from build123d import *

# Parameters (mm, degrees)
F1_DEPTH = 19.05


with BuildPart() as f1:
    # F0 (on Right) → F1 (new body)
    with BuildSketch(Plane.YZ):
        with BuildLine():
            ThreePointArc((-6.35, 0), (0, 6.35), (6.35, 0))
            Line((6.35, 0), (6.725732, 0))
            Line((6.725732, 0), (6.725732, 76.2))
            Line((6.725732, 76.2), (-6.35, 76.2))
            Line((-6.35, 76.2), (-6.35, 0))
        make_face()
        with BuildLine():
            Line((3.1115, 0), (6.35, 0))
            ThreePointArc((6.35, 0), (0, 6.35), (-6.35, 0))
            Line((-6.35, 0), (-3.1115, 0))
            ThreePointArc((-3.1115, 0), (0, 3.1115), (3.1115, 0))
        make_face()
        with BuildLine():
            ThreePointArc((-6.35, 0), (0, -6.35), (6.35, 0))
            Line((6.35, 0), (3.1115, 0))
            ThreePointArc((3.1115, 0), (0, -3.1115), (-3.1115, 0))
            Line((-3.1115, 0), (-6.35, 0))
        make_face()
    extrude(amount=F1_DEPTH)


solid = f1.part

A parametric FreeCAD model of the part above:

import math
import FreeCAD as App
import Part
import Sketcher
from FreeCAD import Vector
Q = App.Units.Quantity

doc = App.newDocument("Part")
body = doc.addObject("PartDesign::Body", "Body")

sketch1 = body.newObject("Sketcher::SketchObject", "Sketch")
sketch1.AttachmentSupport = (doc.getObject("YZ_Plane"), [""])
sketch1.MapMode = "FlatFace"
sketch1.addGeometry([
    Part.LineSegment(Vector(6.73, 0, 0), Vector(6.73, 76.2, 0)),
    Part.LineSegment(Vector(6.73, 76.2, 0), Vector(-6.35, 76.2, 0)),
    Part.LineSegment(Vector(-6.35, 76.2, 0), Vector(-6.35, 0, 0)),
    Part.ArcOfCircle(Part.Circle(Vector(0, 0, 0), Vector(0, 0, 1), 6.35), math.radians(180), math.radians(360)),
    Part.LineSegment(Vector(6.35, 0, 0), Vector(6.73, 0, 0)),
    Part.Circle(Vector(0, 0, 0), Vector(0, 0, 1), 3.11),
], False)
sketch1.addConstraint([
    Sketcher.Constraint("Coincident", 0, 2, 1, 1),
    Sketcher.Constraint("Coincident", 1, 2, 2, 1),
    Sketcher.Constraint("Tangent", 2, 2, 3, 1),
    Sketcher.Constraint("Coincident", 3, 2, 4, 1),
    Sketcher.Constraint("Coincident", 4, 2, 0, 1),
    Sketcher.Constraint("Vertical", 0),
    Sketcher.Constraint("Horizontal", 1),
    Sketcher.Constraint("Vertical", 2),
    Sketcher.Constraint("Horizontal", 4),
    Sketcher.Constraint("Coincident", 3, 3, -1, 1),
    Sketcher.Constraint("Coincident", 5, 3, -1, 1),
    Sketcher.Constraint("PointOnObject", 3, 2, -1),
    Sketcher.Constraint("DistanceY", 0, 1, 0, 2, Q("3 in")),
    Sketcher.Constraint("Radius", 3, Q("0.25 in")),
    Sketcher.Constraint("Diameter", 5, Q("0.245 in")),
    Sketcher.Constraint("DistanceX", 1, 2, 1, 1, 13.075732),
])
pad1 = body.newObject("PartDesign::Pad", "Pad")
pad1.Profile = sketch1
pad1.Length = Q("0.75 in")

doc.recompute()
